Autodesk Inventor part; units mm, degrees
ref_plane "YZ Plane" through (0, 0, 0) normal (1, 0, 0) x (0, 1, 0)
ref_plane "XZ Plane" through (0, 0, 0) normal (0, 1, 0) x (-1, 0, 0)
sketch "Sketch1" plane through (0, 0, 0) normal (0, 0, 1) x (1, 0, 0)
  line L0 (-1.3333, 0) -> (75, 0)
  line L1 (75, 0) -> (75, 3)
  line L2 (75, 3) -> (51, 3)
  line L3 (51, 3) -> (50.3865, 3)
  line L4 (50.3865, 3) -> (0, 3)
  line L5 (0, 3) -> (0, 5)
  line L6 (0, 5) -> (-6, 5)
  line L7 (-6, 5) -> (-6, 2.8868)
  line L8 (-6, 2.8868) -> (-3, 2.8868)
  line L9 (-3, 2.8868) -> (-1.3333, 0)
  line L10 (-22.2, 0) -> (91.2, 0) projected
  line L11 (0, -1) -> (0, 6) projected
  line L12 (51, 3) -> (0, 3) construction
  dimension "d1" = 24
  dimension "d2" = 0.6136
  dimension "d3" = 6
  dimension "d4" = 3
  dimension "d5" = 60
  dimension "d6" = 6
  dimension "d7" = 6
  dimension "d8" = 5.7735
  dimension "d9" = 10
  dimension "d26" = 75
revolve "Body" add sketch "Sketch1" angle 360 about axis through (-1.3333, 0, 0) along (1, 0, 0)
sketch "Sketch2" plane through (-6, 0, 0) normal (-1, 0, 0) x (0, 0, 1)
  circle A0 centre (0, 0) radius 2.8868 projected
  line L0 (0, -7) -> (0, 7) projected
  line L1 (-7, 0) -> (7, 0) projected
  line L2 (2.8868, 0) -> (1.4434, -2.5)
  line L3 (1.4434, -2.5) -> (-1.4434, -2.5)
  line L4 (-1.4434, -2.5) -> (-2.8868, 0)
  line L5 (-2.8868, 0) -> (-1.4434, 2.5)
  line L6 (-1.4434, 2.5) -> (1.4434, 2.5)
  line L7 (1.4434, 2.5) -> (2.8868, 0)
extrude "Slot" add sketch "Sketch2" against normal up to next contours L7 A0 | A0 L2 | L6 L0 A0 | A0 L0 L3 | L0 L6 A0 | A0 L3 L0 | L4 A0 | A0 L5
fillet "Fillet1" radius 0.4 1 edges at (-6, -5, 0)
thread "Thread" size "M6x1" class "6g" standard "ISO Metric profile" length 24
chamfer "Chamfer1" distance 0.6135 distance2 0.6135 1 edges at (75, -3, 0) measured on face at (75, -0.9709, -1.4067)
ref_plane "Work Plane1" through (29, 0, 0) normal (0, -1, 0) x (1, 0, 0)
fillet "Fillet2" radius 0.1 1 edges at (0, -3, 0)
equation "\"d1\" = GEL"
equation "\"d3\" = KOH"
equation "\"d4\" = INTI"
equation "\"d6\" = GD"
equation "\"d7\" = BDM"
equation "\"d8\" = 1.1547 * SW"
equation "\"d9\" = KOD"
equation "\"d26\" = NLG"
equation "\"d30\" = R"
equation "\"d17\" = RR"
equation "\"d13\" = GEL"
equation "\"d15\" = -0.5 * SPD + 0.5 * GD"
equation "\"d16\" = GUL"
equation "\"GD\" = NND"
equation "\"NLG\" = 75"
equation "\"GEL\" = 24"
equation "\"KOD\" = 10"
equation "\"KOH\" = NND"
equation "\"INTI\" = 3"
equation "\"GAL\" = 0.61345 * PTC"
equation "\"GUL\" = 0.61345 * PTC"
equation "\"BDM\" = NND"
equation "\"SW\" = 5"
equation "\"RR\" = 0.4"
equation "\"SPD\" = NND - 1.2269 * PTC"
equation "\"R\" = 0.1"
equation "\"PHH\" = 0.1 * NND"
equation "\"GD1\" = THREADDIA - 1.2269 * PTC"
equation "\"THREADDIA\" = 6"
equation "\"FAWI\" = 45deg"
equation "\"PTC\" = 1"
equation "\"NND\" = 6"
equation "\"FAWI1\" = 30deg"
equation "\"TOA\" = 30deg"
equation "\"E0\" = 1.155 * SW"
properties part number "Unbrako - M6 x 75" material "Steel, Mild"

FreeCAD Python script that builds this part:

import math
import FreeCAD as App
import Part
import Sketcher

V = App.Vector
Q = App.Units.Quantity


def edges_at(feature, points):
    """Names of the edges that pass closest to the given points."""
    edges = feature.Shape.Edges
    near = lambda p: min(range(len(edges)), key=lambda i: edges[i].distToShape(Part.Vertex(*p))[0])
    return sorted({f"Edge{near(p) + 1}" for p in points})

doc = App.newDocument("Part")
body = doc.addObject("PartDesign::Body", "Body")

# Sketch on XY plane
sketch1 = body.newObject("Sketcher::SketchObject", "Sketch")
sketch1.AttachmentSupport = (doc.getObject("XY_Plane"), [""])
sketch1.MapMode = "FlatFace"
sketch1.addGeometry([
    Part.LineSegment(V(-3, 2.9, 0), V(-1.3, 0, 0)),  # 0
    Part.LineSegment(V(-1.3, 0, 0), V(75, 0, 0)),  # 1
    Part.LineSegment(V(75, 0, 0), V(75, 3, 0)),  # 2
    Part.LineSegment(V(75, 3, 0), V(0, 3, 0)),  # 3
    Part.LineSegment(V(0, 3, 0), V(0, 5, 0)),  # 4
    Part.LineSegment(V(0, 5, 0), V(-6, 5, 0)),  # 5
    Part.LineSegment(V(-6, 5, 0), V(-6, 2.9, 0)),  # 6
    Part.LineSegment(V(-6, 2.9, 0), V(-3, 2.9, 0)),  # 7
], False)
sketch1.addConstraint([
    Sketcher.Constraint("Coincident", 0, 2, 1, 1),
    Sketcher.Constraint("Coincident", 1, 2, 2, 1),
    Sketcher.Constraint("Coincident", 2, 2, 3, 1),
    Sketcher.Constraint("Coincident", 3, 2, 4, 1),
    Sketcher.Constraint("Coincident", 4, 2, 5, 1),
    Sketcher.Constraint("Coincident", 5, 2, 6, 1),
    Sketcher.Constraint("Coincident", 6, 2, 7, 1),
    Sketcher.Constraint("Coincident", 7, 2, 0, 1),
    Sketcher.Constraint("Horizontal", 1),
    Sketcher.Constraint("Vertical", 2),
    Sketcher.Constraint("Horizontal", 3),
    Sketcher.Constraint("Vertical", 4),
    Sketcher.Constraint("Horizontal", 5),
    Sketcher.Constraint("Vertical", 6),
    Sketcher.Constraint("Horizontal", 7),
    Sketcher.Constraint("PointOnObject", 0, 2, -1),
    Sketcher.Constraint("PointOnObject", 3, 2, -2),
    Sketcher.Constraint("Equal", 7, 2),
    Sketcher.Constraint("DistanceX", 3, 2, 3, 1, Q("75 mm")),
    Sketcher.Constraint("DistanceX", 5, 2, 5, 1, Q("6 mm")),
    Sketcher.Constraint("DistanceX", 7, 1, 7, 2, Q("3 mm")),
    Sketcher.Constraint("Angle", 0, Q("-60 deg")),
    Sketcher.Constraint("DistanceY", 4, 1, 4, 2, Q("2 mm")),
    Sketcher.Constraint("DistanceX", 1, 1, 1, 2, Q("76.3333 mm")),
])
revolution = body.newObject("PartDesign::Revolution", "Revolution")
revolution.Profile = sketch1
revolution.ReferenceAxis = (sketch1, ["H_Axis"])
revolution.Angle = 360

# Sketch on YZ plane
sketch2 = body.newObject("Sketcher::SketchObject", "Sketch001")
sketch2.AttachmentSupport = (doc.getObject("YZ_Plane"), [""])
sketch2.MapMode = "FlatFace"
sketch2.AttachmentOffset = App.Placement(V(0, 0, -6), App.Rotation())
sketch2.addGeometry([
    Part.LineSegment(V(2.5, 1.4, 0), V(0, 2.9, 0)),  # 0
    Part.ArcOfCircle(Part.Circle(V(0, 0, 0), V(0, 0, 1), 2.9), math.radians(30), math.radians(90)),  # 1
    Part.ArcOfCircle(Part.Circle(V(0, 0, 0), V(0, 0, 1), 2.9), math.radians(90), math.radians(150)),  # 2
    Part.LineSegment(V(0, 2.9, 0), V(-2.5, 1.4, 0)),  # 3
    Part.ArcOfCircle(Part.Circle(V(0, 0, 0), V(0, 0, 1), 2.9), math.radians(-30), math.radians(30)),  # 4
    Part.LineSegment(V(2.5, 1.4, 0), V(2.5, -1.4, 0)),  # 5
    Part.LineSegment(V(-2.5, 1.4, 0), V(-2.5, -1.4, 0)),  # 6
    Part.ArcOfCircle(Part.Circle(V(0, 0, 0), V(0, 0, 1), 2.9), math.radians(150), math.radians(210)),  # 7
    Part.LineSegment(V(-2.5, -1.4, 0), V(0, -2.9, 0)),  # 8
    Part.ArcOfCircle(Part.Circle(V(0, 0, 0), V(0, 0, 1), 2.9), math.radians(-150), math.radians(-90)),  # 9
    Part.ArcOfCircle(Part.Circle(V(0, 0, 0), V(0, 0, 1), 2.9), math.radians(-90), math.radians(-30)),  # 10
    Part.LineSegment(V(0, -2.9, 0), V(2.5, -1.4, 0)),  # 11
], False)
sketch2.addConstraint([
    Sketcher.Constraint("Coincident", 0, 1, 1, 1),
    Sketcher.Constraint("Coincident", 1, 2, 0, 2),
    Sketcher.Constraint("Coincident", 2, 1, 3, 1),
    Sketcher.Constraint("Coincident", 3, 2, 2, 2),
    Sketcher.Constraint("Coincident", 4, 1, 5, 2),
    Sketcher.Constraint("Coincident", 5, 1, 4, 2),
    Sketcher.Constraint("Coincident", 6, 1, 7, 1),
    Sketcher.Constraint("Coincident", 7, 2, 6, 2),
    Sketcher.Constraint("Coincident", 8, 1, 9, 1),
    Sketcher.Constraint("Coincident", 9, 2, 8, 2),
    Sketcher.Constraint("Coincident", 10, 1, 11, 1),
    Sketcher.Constraint("Coincident", 11, 2, 10, 2),
    Sketcher.Constraint("Vertical", 5),
    Sketcher.Constraint("Vertical", 6),
    Sketcher.Constraint("Coincident", 1, 3, -1, 1),
    Sketcher.Constraint("Coincident", 2, 3, -1, 1),
    Sketcher.Constraint("Coincident", 4, 3, -1, 1),
    Sketcher.Constraint("Coincident", 7, 3, -1, 1),
    Sketcher.Constraint("Coincident", 9, 3, -1, 1),
    Sketcher.Constraint("Coincident", 10, 3, -1, 1),
    Sketcher.Constraint("Coincident", 2, 1, 1, 2),
    Sketcher.Constraint("Coincident", 5, 1, 0, 1),
    Sketcher.Constraint("Coincident", 6, 1, 3, 2),
    Sketcher.Constraint("Coincident", 8, 1, 7, 2),
    Sketcher.Constraint("Coincident", 10, 1, 9, 2),
    Sketcher.Constraint("PointOnObject", 1, 2, -2),
    Sketcher.Constraint("PointOnObject", 9, 2, -2),
    Sketcher.Constraint("Parallel", 0, 8),
    Sketcher.Constraint("Parallel", 3, 11),
    Sketcher.Constraint("Angle", 0, Q("149.9996 deg")),
    Sketcher.Constraint("DistanceX", -1, 1, 0, 1, Q("2.5 mm")),
])
pad1 = body.newObject("PartDesign::Pad", "Pad")
pad1.Profile = sketch2
pad1.Type = "UpToFirst"
doc.recompute()

fillet = body.newObject("PartDesign::Fillet", "Fillet")
fillet.Base = (pad1, edges_at(pad1, [(-6, -5, 0)]))
fillet.Radius = 0.4
doc.recompute()

chamfer = body.newObject("PartDesign::Chamfer", "Chamfer")
chamfer.Base = (fillet, edges_at(fillet, [(75, -3, 0)]))
chamfer.ChamferType = "Two distances"
chamfer.Size = 0.6135
chamfer.Size2 = 0.6135
doc.recompute()

fillet2 = body.newObject("PartDesign::Fillet", "Fillet001")
fillet2.Base = (chamfer, edges_at(chamfer, [(0, -3, 0)]))
fillet2.Radius = 0.1

doc.recompute()
